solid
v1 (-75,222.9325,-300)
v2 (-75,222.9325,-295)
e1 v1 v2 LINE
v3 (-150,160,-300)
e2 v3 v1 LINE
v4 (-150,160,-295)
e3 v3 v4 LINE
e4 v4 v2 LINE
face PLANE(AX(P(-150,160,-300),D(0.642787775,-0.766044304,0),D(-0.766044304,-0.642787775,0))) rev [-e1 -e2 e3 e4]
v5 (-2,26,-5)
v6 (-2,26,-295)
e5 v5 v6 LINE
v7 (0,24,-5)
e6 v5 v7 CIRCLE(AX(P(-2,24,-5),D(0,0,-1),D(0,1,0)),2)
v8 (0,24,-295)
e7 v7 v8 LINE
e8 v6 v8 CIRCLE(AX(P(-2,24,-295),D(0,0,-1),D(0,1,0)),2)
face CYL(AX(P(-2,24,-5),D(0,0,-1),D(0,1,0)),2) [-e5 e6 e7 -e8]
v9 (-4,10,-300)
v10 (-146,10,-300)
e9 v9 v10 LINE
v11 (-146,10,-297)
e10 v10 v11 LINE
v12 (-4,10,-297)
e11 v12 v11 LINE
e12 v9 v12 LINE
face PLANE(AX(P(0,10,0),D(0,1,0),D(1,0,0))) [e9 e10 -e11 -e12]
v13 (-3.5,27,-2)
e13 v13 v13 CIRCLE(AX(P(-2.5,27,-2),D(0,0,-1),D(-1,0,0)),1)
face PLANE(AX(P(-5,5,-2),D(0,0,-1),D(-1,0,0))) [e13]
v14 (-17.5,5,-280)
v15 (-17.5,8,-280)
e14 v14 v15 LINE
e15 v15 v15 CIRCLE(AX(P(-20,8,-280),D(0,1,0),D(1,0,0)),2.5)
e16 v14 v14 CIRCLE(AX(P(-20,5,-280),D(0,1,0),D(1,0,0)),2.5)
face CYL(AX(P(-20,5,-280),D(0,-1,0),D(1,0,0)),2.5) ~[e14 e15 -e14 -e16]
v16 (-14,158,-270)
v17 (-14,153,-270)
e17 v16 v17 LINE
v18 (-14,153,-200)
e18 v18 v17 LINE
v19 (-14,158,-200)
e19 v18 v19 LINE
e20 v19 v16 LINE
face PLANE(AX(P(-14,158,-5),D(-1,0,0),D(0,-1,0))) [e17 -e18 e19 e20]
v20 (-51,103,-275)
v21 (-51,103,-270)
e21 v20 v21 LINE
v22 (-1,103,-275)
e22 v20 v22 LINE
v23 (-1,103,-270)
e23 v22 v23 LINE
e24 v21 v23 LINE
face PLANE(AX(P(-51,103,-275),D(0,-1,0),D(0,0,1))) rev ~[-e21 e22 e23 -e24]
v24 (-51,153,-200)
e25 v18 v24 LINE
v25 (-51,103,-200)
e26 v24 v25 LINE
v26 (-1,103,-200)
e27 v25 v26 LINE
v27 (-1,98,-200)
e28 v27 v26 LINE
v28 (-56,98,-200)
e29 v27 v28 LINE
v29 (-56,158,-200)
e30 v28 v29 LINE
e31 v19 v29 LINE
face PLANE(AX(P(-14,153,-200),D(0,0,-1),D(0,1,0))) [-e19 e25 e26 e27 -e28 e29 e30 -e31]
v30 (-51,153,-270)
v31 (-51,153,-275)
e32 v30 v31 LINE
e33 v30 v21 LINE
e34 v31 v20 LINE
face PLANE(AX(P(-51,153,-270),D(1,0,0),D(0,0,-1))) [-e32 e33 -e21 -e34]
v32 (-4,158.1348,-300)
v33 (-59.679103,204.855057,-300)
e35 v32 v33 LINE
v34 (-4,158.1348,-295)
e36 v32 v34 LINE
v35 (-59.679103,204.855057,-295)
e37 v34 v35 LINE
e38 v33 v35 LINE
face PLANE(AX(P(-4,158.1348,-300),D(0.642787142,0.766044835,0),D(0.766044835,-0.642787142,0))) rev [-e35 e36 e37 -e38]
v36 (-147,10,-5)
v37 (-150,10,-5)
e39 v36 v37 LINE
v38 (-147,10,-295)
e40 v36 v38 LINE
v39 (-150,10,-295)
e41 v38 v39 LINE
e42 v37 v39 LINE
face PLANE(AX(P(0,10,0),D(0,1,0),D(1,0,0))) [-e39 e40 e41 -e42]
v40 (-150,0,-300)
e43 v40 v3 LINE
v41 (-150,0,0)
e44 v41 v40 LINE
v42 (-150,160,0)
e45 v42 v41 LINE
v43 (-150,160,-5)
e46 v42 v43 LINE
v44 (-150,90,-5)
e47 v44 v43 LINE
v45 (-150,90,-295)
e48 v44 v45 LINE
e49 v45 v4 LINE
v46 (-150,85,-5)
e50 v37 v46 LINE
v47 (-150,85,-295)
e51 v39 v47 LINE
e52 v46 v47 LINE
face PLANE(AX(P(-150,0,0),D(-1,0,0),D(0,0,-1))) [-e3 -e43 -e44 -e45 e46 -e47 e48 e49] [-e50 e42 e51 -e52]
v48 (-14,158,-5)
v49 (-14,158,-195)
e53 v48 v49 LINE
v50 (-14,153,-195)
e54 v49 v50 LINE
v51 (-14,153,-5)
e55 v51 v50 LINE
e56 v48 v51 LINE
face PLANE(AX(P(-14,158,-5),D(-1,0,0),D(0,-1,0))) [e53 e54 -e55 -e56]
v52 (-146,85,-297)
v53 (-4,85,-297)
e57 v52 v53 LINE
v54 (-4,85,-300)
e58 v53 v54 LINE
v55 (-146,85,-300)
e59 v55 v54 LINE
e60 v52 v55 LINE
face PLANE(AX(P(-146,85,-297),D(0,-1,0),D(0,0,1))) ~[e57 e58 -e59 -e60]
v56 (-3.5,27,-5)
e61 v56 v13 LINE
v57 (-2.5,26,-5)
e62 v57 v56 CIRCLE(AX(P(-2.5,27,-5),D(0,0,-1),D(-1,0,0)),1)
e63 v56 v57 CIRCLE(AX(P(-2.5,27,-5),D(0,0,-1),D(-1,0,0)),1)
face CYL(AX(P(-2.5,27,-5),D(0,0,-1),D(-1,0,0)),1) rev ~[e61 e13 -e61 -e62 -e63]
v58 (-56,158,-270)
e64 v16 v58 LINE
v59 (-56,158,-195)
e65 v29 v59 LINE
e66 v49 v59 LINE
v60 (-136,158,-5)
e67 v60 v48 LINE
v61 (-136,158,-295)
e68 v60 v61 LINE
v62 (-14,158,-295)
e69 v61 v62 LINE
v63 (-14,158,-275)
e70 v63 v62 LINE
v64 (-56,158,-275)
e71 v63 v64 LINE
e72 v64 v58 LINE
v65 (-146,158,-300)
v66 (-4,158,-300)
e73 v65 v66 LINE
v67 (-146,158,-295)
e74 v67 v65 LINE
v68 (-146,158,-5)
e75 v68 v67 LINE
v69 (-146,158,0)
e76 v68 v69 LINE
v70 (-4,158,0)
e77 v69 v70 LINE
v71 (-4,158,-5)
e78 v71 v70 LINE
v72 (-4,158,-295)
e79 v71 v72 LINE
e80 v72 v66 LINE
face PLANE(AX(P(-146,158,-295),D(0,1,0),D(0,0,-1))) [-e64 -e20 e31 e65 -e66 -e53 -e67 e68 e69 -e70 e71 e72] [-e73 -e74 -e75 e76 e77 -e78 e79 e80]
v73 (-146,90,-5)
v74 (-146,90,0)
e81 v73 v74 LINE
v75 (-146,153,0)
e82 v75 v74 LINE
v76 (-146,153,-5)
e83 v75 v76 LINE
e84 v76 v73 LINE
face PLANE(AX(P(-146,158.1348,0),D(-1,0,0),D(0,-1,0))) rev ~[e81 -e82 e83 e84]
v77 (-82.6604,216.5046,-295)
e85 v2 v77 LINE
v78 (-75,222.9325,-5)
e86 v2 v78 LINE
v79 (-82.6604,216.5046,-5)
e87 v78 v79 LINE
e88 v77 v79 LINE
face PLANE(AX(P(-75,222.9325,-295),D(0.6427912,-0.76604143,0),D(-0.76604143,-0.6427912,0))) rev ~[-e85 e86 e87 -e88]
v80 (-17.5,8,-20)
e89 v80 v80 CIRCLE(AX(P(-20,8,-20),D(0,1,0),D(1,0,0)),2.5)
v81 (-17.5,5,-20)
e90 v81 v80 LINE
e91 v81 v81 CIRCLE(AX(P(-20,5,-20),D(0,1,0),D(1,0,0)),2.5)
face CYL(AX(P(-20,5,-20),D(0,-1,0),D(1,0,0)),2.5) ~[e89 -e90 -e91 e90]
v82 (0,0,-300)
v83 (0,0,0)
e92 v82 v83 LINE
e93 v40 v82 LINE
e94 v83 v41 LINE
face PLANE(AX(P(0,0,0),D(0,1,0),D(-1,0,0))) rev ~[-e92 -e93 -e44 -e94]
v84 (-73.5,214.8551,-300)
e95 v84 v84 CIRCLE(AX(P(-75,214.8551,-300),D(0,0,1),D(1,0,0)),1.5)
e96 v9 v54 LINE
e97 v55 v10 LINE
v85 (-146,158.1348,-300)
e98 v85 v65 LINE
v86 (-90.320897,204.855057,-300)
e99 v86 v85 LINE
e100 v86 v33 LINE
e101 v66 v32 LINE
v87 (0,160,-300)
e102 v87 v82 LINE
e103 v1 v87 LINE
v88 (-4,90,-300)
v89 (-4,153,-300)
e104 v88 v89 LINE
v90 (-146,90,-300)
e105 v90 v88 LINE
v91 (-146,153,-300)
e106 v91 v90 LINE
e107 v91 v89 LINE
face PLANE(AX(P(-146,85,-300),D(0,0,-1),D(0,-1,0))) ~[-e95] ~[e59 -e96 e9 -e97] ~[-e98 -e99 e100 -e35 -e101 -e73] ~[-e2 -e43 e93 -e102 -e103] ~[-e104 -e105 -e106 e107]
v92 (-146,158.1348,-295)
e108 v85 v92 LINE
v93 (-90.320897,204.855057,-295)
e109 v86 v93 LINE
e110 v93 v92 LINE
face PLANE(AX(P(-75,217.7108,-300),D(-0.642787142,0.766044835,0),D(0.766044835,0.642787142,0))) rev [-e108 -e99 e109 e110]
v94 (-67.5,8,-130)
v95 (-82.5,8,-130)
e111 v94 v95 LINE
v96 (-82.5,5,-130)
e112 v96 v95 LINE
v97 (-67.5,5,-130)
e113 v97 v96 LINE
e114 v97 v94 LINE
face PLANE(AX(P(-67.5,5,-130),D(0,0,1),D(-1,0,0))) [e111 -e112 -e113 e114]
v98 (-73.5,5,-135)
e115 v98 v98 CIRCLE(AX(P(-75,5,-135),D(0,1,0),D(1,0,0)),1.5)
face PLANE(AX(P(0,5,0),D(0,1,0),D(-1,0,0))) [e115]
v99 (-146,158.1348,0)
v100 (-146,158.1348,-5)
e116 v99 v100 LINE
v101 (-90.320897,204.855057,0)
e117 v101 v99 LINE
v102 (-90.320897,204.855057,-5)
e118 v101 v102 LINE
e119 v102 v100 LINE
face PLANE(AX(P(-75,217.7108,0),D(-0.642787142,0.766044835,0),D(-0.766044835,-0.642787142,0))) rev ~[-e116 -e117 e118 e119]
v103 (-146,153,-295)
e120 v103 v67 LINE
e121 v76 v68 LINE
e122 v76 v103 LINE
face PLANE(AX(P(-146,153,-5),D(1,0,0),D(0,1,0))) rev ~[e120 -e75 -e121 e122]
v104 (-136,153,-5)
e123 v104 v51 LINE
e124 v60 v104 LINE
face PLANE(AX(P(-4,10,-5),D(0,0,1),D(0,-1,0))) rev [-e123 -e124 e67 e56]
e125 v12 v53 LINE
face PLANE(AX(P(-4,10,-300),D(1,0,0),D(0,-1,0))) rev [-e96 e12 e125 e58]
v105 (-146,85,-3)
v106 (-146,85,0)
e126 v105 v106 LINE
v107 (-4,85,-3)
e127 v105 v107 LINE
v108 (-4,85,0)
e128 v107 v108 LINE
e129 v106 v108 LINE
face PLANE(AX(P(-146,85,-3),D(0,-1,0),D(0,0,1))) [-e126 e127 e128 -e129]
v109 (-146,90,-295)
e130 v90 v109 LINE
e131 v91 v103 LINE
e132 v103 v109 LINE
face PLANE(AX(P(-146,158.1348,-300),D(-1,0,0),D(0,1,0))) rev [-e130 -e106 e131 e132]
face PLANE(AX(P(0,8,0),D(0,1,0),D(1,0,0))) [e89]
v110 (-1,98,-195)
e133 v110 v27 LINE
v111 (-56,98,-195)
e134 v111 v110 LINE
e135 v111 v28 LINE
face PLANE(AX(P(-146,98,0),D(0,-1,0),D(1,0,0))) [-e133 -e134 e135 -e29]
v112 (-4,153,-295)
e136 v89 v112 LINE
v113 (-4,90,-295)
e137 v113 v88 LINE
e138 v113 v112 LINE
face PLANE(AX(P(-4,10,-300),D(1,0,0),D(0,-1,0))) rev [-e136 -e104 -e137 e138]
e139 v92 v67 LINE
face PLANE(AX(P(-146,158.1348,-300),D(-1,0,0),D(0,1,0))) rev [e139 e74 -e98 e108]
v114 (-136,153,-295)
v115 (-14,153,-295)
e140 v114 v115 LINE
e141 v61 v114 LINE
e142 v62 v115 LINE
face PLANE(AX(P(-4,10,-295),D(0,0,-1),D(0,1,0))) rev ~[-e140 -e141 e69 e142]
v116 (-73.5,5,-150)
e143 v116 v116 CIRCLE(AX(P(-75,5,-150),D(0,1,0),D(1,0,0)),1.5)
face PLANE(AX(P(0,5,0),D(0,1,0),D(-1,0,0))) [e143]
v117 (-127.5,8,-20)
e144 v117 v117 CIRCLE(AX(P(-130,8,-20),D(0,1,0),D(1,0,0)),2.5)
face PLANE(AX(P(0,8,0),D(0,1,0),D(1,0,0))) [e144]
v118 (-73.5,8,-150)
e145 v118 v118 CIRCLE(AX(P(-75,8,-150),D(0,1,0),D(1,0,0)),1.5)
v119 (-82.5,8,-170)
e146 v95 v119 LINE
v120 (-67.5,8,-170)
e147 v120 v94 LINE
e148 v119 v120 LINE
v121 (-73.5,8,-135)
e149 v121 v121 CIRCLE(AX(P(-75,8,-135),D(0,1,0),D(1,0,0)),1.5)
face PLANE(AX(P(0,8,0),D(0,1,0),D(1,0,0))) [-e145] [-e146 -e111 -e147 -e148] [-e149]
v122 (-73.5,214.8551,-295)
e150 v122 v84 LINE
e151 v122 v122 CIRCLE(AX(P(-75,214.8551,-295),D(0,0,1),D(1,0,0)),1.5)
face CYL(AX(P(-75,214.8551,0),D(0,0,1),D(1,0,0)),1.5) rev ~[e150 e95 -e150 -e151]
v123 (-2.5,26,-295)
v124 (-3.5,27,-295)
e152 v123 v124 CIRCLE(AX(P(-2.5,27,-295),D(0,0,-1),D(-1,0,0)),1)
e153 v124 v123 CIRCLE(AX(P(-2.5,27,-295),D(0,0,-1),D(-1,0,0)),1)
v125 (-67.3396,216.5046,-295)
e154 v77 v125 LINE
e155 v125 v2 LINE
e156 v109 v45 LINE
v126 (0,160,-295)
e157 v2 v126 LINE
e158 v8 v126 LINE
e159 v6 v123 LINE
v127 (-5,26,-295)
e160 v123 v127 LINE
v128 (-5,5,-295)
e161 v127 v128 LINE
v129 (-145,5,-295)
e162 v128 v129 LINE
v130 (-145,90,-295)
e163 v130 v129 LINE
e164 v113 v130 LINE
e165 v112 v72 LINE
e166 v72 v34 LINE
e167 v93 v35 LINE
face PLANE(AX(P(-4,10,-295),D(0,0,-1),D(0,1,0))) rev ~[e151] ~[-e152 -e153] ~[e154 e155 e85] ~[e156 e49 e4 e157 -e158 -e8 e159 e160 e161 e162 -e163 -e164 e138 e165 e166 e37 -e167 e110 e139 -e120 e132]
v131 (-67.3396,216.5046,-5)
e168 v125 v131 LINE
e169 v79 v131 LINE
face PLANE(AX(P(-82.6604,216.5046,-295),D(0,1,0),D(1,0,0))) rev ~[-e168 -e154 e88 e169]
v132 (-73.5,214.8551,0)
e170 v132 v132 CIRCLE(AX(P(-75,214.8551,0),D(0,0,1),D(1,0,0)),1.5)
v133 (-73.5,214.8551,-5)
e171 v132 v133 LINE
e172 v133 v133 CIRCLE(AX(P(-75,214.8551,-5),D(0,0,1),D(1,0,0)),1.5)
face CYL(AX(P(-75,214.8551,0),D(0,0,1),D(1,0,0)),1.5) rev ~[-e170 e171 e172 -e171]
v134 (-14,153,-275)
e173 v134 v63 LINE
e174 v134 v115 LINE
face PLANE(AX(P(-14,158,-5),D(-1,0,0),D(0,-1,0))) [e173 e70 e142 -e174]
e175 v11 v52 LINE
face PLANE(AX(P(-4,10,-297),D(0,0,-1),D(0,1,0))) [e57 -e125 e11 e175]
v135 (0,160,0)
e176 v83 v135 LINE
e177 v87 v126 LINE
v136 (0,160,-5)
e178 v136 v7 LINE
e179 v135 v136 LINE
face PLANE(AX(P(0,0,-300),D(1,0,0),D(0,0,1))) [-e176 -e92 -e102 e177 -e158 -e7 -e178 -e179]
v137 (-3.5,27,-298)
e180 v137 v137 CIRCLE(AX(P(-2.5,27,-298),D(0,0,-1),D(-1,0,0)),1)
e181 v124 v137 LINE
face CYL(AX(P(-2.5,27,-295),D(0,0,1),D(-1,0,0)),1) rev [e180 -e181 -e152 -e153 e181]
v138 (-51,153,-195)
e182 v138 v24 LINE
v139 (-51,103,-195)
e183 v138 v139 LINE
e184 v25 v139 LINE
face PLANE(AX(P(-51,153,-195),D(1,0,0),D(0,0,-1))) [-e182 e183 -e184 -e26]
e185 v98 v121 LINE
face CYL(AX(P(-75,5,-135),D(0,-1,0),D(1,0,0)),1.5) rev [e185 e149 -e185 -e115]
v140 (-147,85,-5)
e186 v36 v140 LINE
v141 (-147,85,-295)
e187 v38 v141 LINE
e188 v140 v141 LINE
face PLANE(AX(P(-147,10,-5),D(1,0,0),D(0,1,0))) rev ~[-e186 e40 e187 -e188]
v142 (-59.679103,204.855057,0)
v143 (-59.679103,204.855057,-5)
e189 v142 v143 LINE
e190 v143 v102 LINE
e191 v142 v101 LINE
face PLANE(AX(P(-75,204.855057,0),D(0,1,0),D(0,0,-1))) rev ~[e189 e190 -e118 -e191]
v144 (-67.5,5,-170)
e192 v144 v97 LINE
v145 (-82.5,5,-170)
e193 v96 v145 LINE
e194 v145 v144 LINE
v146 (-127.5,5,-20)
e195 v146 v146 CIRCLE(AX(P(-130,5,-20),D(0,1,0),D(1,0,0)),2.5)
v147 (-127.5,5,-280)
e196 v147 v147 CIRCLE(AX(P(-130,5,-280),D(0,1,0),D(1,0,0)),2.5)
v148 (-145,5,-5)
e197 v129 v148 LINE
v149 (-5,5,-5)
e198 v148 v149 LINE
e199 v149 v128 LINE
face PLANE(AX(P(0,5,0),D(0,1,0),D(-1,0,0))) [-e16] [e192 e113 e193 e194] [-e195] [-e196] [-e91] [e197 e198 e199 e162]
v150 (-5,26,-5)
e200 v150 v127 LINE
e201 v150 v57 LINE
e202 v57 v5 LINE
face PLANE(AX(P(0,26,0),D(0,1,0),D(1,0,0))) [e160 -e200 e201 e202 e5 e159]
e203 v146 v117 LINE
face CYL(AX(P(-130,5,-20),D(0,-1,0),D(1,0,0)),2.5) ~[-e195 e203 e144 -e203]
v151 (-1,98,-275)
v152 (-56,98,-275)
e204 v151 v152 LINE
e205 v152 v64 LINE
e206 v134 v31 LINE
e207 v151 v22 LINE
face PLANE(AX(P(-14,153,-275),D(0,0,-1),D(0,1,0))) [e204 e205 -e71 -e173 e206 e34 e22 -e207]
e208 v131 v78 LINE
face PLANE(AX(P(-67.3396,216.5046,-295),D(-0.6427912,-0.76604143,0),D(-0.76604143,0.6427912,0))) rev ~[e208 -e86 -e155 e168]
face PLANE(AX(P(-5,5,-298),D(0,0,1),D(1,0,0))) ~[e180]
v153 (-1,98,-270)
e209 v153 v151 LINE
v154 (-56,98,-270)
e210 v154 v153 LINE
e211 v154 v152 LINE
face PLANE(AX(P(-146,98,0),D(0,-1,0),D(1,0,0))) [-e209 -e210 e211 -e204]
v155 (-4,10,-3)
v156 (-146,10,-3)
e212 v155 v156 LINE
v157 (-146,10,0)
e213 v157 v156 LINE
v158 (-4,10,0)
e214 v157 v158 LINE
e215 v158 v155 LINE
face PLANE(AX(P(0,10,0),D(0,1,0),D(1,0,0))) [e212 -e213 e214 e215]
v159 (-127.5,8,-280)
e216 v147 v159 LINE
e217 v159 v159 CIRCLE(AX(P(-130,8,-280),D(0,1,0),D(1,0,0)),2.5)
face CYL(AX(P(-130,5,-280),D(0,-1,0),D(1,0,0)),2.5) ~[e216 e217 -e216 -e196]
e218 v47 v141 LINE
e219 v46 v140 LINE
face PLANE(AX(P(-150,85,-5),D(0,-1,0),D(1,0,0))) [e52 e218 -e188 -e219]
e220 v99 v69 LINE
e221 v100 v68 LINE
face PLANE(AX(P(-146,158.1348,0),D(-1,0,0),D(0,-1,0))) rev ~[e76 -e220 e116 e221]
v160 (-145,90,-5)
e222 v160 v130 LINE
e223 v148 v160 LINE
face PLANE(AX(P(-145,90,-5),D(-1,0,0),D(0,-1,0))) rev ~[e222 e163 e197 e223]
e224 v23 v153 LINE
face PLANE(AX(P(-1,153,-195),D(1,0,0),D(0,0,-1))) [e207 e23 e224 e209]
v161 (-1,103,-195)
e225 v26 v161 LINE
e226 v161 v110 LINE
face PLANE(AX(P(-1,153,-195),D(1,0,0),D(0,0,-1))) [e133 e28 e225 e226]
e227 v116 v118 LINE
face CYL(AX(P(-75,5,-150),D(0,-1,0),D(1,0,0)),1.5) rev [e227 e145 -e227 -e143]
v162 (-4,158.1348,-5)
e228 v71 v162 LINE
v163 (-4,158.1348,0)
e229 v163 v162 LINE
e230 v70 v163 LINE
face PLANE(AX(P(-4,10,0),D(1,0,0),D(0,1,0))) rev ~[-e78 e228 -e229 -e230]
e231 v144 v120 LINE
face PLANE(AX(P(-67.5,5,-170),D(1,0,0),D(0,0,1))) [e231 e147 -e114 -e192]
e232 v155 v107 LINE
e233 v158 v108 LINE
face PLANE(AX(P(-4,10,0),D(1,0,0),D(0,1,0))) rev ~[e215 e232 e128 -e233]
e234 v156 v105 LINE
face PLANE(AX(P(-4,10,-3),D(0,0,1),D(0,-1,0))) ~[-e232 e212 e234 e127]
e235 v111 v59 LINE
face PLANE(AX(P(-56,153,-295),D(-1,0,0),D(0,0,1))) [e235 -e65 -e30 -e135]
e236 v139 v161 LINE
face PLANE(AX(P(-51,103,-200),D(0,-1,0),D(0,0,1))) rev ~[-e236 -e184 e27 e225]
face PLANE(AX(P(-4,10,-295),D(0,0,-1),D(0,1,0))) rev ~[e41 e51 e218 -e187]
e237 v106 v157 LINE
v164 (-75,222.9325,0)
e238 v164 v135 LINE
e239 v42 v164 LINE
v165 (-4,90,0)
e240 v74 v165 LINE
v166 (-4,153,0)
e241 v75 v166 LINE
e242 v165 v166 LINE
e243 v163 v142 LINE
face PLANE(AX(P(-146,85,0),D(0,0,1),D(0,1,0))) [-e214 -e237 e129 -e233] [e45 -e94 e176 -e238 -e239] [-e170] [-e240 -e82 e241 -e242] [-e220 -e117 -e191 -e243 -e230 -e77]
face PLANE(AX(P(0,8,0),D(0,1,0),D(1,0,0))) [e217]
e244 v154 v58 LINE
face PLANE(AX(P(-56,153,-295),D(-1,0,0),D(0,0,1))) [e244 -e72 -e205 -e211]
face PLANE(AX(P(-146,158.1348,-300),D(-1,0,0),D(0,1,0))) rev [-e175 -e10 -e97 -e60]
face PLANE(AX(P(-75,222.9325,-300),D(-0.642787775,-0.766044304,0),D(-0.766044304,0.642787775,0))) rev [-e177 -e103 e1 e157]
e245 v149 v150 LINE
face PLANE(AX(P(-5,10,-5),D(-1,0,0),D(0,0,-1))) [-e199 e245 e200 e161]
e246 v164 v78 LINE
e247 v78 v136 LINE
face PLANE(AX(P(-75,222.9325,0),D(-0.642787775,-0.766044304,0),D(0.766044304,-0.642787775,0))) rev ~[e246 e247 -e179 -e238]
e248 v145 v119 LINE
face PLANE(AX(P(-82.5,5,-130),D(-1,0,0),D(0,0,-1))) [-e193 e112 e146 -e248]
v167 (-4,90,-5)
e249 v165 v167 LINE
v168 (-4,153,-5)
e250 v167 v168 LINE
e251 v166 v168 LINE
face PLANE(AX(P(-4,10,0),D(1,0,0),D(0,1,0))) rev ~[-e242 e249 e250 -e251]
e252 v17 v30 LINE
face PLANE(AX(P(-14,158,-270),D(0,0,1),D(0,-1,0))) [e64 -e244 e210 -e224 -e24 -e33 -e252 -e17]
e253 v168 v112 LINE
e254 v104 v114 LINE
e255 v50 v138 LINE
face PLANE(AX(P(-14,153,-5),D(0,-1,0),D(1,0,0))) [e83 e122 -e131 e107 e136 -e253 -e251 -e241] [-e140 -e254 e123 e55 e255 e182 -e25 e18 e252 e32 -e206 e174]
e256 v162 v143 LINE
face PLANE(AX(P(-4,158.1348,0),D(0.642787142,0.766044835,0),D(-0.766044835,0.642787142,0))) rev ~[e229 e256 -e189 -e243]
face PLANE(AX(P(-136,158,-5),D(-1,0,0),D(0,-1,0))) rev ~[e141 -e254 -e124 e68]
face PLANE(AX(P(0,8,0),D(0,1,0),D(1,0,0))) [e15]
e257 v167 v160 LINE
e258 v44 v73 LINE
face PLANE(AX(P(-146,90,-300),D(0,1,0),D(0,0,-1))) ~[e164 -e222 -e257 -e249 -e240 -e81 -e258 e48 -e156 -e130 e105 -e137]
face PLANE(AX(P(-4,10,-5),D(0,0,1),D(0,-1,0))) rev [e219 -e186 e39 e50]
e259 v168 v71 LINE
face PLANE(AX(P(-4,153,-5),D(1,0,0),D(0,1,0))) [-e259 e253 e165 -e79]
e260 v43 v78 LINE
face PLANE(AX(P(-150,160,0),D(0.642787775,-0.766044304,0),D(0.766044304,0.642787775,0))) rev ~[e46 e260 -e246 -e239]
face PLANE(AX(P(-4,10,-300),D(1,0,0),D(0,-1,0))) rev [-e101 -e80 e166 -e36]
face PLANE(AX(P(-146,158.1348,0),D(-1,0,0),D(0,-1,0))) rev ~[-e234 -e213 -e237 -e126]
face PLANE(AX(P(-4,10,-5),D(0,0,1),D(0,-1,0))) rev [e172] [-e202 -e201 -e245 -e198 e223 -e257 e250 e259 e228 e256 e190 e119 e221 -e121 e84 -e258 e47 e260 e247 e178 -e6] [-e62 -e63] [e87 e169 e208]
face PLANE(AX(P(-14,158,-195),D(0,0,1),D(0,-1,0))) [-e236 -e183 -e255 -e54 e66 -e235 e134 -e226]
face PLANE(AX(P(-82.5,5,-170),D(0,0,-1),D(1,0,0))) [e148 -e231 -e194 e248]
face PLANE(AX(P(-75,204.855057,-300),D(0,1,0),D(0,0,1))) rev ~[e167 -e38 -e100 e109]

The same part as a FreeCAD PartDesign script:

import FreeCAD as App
import Part
import Sketcher

V = App.Vector
Q = App.Units.Quantity


def edges_at(feature, points):
    """Names of the edges that pass closest to the given points."""
    edges = feature.Shape.Edges
    near = lambda p: min(range(len(edges)), key=lambda i: edges[i].distToShape(Part.Vertex(*p))[0])
    return sorted({f"Edge{near(p) + 1}" for p in points})


def add_polygon(sketch, points):
    """Adds a closed chain of lines whose ends are joined by coincident constraints."""
    first, n = sketch.GeometryCount, len(points)
    for a, b in zip(points, points[1:] + points[:1]):
        sketch.addGeometry(Part.LineSegment(App.Vector(*a, 0), App.Vector(*b, 0)), False)
    for i in range(n):
        sketch.addConstraint(Sketcher.Constraint("Coincident", first + i, 2, first + (i + 1) % n, 1))

doc = App.newDocument("Part")
body = doc.addObject("PartDesign::Body", "Body")

# Sketch on XZ plane
sketch1 = body.newObject("Sketcher::SketchObject", "Sketch")
sketch1.AttachmentSupport = (doc.getObject("XZ_Plane"), [""])
sketch1.MapMode = "FlatFace"
add_polygon(sketch1, [(-150, 0), (0, 0), (0, -300), (-150, -300)])  # lines 0-3
sketch1.addConstraint(Sketcher.Constraint("Horizontal", 0))
sketch1.addConstraint(Sketcher.Constraint("Vertical", 1))
sketch1.addConstraint(Sketcher.Constraint("Horizontal", 2))
sketch1.addConstraint(Sketcher.Constraint("Vertical", 3))
sketch1.addConstraint(Sketcher.Constraint("Coincident", 0, 2, -1, 1))
sketch1.addConstraint(Sketcher.Constraint("DistanceX", 0, 1, 0, 2, 150.0))
sketch1.addConstraint(Sketcher.Constraint("DistanceY", 1, 2, 1, 1, 300.0))
pad1 = body.newObject("PartDesign::Pad", "Pad")
pad1.Profile = sketch1
pad1.Length = 5
pad1.Reversed = True

# Sketch on XZ plane
sketch2 = body.newObject("Sketcher::SketchObject", "Sketch001")
sketch2.AttachmentSupport = (doc.getObject("XZ_Plane"), [""])
sketch2.MapMode = "FlatFace"
sketch2.AttachmentOffset = App.Placement(V(0, 0, -5), App.Rotation())
add_polygon(sketch2, [(-150, -300), (-150, 0), (0, 0), (0, -300)])  # lines 0-3
add_polygon(sketch2, [(-145, -5), (-145, -295), (-5, -295), (-5, -5)])  # lines 4-7
sketch2.addConstraint(Sketcher.Constraint("Vertical", 0))
sketch2.addConstraint(Sketcher.Constraint("Horizontal", 1))
sketch2.addConstraint(Sketcher.Constraint("Vertical", 2))
sketch2.addConstraint(Sketcher.Constraint("Horizontal", 3))
sketch2.addConstraint(Sketcher.Constraint("Vertical", 4))
sketch2.addConstraint(Sketcher.Constraint("Horizontal", 5))
sketch2.addConstraint(Sketcher.Constraint("Vertical", 6))
sketch2.addConstraint(Sketcher.Constraint("Horizontal", 7))
sketch2.addConstraint(Sketcher.Constraint("Coincident", 1, 2, -1, 1))
sketch2.addConstraint(Sketcher.Constraint("DistanceX", 5, 2, -1, 1, 5.0))
sketch2.addConstraint(Sketcher.Constraint("DistanceY", 6, 2, -1, 1, 5.0))
sketch2.addConstraint(Sketcher.Constraint("DistanceX", 3, 2, 4, 2, 5.0))
sketch2.addConstraint(Sketcher.Constraint("DistanceY", 3, 2, 4, 2, 5.0))
sketch2.addConstraint(Sketcher.Constraint("DistanceX", 1, 1, 1, 2, 150.0))
sketch2.addConstraint(Sketcher.Constraint("DistanceY", 0, 1, 0, 2, 300.0))
pad2 = body.newObject("PartDesign::Pad", "Pad001")
pad2.Profile = sketch2
pad2.Length = 5
pad2.Reversed = True

# Sketch on XY plane
sketch3 = body.newObject("Sketcher::SketchObject", "Sketch002")
sketch3.AttachmentSupport = (doc.getObject("XY_Plane"), [""])
sketch3.MapMode = "FlatFace"
add_polygon(sketch3, [(-4, 10), (0, 10), (0, 160), (-75, 222.9), (-150, 160), (-150, 10), (-146, 10), (-146, 158.1), (-75, 217.7), (-4, 158.1)])  # lines 0-9
sketch3.addConstraint(Sketcher.Constraint("Horizontal", 0))
sketch3.addConstraint(Sketcher.Constraint("Vertical", 1))
sketch3.addConstraint(Sketcher.Constraint("Vertical", 4))
sketch3.addConstraint(Sketcher.Constraint("Horizontal", 5))
sketch3.addConstraint(Sketcher.Constraint("Vertical", 6))
sketch3.addConstraint(Sketcher.Constraint("Vertical", 9))
sketch3.addConstraint(Sketcher.Constraint("PointOnObject", 0, 2, -2))
sketch3.addConstraint(Sketcher.Constraint("Parallel", 3, 7))
sketch3.addConstraint(Sketcher.Constraint("Parallel", 2, 8))
sketch3.addConstraint(Sketcher.Constraint("Horizontal", 1, 2, 3, 2))
sketch3.addConstraint(Sketcher.Constraint("Horizontal", 0, 2, 4, 2))
sketch3.addConstraint(Sketcher.Constraint("Horizontal", 6, 2, 8, 2))
sketch3.addConstraint(Sketcher.Constraint("Vertical", 2, 2, 7, 2))
sketch3.addConstraint(Sketcher.Constraint("Equal", 0, 5))
sketch3.addConstraint(Sketcher.Constraint("DistanceX", 0, 1, 0, 2, 4.0))
sketch3.addConstraint(Sketcher.Constraint("DistanceY", 1, 1, 1, 2, 150.0))
sketch3.addConstraint(Sketcher.Constraint("DistanceX", 3, 2, -1, 1, 150.0))
sketch3.addConstraint(Sketcher.Constraint("Angle", 2, Q("140 deg")))
sketch3.addConstraint(Sketcher.Constraint("DistanceY", -1, 1, 0, 2, 10.0))
sketch3.addConstraint(Sketcher.Constraint("DistanceY", 6, 1, 6, 2, 148.1348))
pad3 = body.newObject("PartDesign::Pad", "Pad002")
pad3.Profile = sketch3
pad3.Length = 5
pad3.Reversed = True
doc.recompute()

datumplane = body.newObject("PartDesign::Plane", "DatumPlane")
datumplane.AttachmentSupport = (doc.getObject("XY_Plane"), [""])
datumplane.MapMode = "FlatFace"
datumplane.AttachmentOffset = App.Placement(V(0, 0, -150), App.Rotation())
mirrored = body.newObject("PartDesign::Mirrored", "Mirrored")
mirrored.Originals = [pad3]
mirrored.MirrorPlane = (datumplane, [""])
body.Tip = mirrored

# Sketch on XY plane
sketch4 = body.newObject("Sketcher::SketchObject", "Sketch003")
sketch4.AttachmentSupport = (doc.getObject("XY_Plane"), [""])
sketch4.MapMode = "FlatFace"
sketch4.AttachmentOffset = App.Placement(V(0, 0, -5), App.Rotation())
add_polygon(sketch4, [(-145, 90), (-145, 10), (-147, 10), (-147, 90)])  # lines 0-3
sketch4.addConstraint(Sketcher.Constraint("Vertical", 0))
sketch4.addConstraint(Sketcher.Constraint("Horizontal", 1))
sketch4.addConstraint(Sketcher.Constraint("Vertical", 2))
sketch4.addConstraint(Sketcher.Constraint("Horizontal", 3))
sketch4.addConstraint(Sketcher.Constraint("DistanceX", 1, 2, 1, 1, 2.0))
sketch4.addConstraint(Sketcher.Constraint("DistanceY", 0, 2, 0, 1, 80.0))
sketch4.addConstraint(Sketcher.Constraint("DistanceX", 0, 2, -1, 1, 145.0))
sketch4.addConstraint(Sketcher.Constraint("DistanceY", -1, 1, 0, 2, 10.0))
pad4 = body.newObject("PartDesign::Pad", "Pad003")
pad4.Profile = sketch4
pad4.Length = 290
pad4.Reversed = True

# Sketch on YZ plane
sketch5 = body.newObject("Sketcher::SketchObject", "Sketch004")
sketch5.AttachmentSupport = (doc.getObject("YZ_Plane"), [""])
sketch5.MapMode = "FlatFace"
sketch5.AttachmentOffset = App.Placement(V(0, 0, -4), App.Rotation())
add_polygon(sketch5, [(10, -297), (10, -295), (90, -295), (90, -297)])  # lines 0-3
sketch5.addConstraint(Sketcher.Constraint("Vertical", 0))
sketch5.addConstraint(Sketcher.Constraint("Horizontal", 1))
sketch5.addConstraint(Sketcher.Constraint("Vertical", 2))
sketch5.addConstraint(Sketcher.Constraint("Horizontal", 3))
sketch5.addConstraint(Sketcher.Constraint("DistanceX", 1, 1, 1, 2, 80.0))
sketch5.addConstraint(Sketcher.Constraint("DistanceY", 0, 1, 0, 2, 2.0))
sketch5.addConstraint(Sketcher.Constraint("DistanceX", -1, 1, 0, 2, 10.0))
sketch5.addConstraint(Sketcher.Constraint("DistanceY", 0, 2, -1, 1, 295.0))
pad5 = body.newObject("PartDesign::Pad", "Pad004")
pad5.Profile = sketch5
pad5.Length = 142
pad5.Reversed = True
doc.recompute()

datumplane2 = body.newObject("PartDesign::Plane", "DatumPlane001")
datumplane2.AttachmentSupport = (doc.getObject("XY_Plane"), [""])
datumplane2.MapMode = "FlatFace"
datumplane2.AttachmentOffset = App.Placement(V(0, 0, -150), App.Rotation())
mirrored2 = body.newObject("PartDesign::Mirrored", "Mirrored001")
mirrored2.Originals = [pad5]
mirrored2.MirrorPlane = (datumplane2, [""])
body.Tip = mirrored2

# Sketch on YZ plane
sketch6 = body.newObject("Sketcher::SketchObject", "Sketch005")
sketch6.AttachmentSupport = (doc.getObject("YZ_Plane"), [""])
sketch6.MapMode = "FlatFace"
sketch6.AttachmentOffset = App.Placement(V(0, 0, -146), App.Rotation())
add_polygon(sketch6, [(85, -3), (90, -3), (90, 0), (85, 0)])  # lines 0-3
sketch6.addConstraint(Sketcher.Constraint("Horizontal", 0))
sketch6.addConstraint(Sketcher.Constraint("Vertical", 1))
sketch6.addConstraint(Sketcher.Constraint("Horizontal", 2))
sketch6.addConstraint(Sketcher.Constraint("Vertical", 3))
sketch6.addConstraint(Sketcher.Constraint("PointOnObject", 1, 2, -1))
sketch6.addConstraint(Sketcher.Constraint("DistanceX", 0, 1, 0, 2, 5.0))
sketch6.addConstraint(Sketcher.Constraint("DistanceY", 1, 1, 1, 2, 3.0))
sketch6.addConstraint(Sketcher.Constraint("DistanceX", -1, 1, 0, 2, 90.0))
pad6 = body.newObject("PartDesign::Pad", "Pad005")
pad6.Profile = sketch6
pad6.Length = 142
doc.recompute()

datumplane3 = body.newObject("PartDesign::Plane", "DatumPlane002")
datumplane3.AttachmentSupport = (doc.getObject("XY_Plane"), [""])
datumplane3.MapMode = "FlatFace"
datumplane3.AttachmentOffset = App.Placement(V(0, 0, -150), App.Rotation())
mirrored3 = body.newObject("PartDesign::Mirrored", "Mirrored002")
mirrored3.Originals = [pad6]
mirrored3.MirrorPlane = (datumplane3, [""])
body.Tip = mirrored3

# Sketch on XY plane
sketch7 = body.newObject("Sketcher::SketchObject", "Sketch006")
sketch7.AttachmentSupport = (doc.getObject("XY_Plane"), [""])
sketch7.MapMode = "FlatFace"
sketch7.AttachmentOffset = App.Placement(V(0, 0, -5), App.Rotation())
add_polygon(sketch7, [(-150, 90), (-146, 90), (-146, 85), (-150, 85)])  # lines 0-3
sketch7.addConstraint(Sketcher.Constraint("Horizontal", 0))
sketch7.addConstraint(Sketcher.Constraint("Vertical", 1))
sketch7.addConstraint(Sketcher.Constraint("Horizontal", 2))
sketch7.addConstraint(Sketcher.Constraint("Vertical", 3))
sketch7.addConstraint(Sketcher.Constraint("DistanceY", 1, 2, 1, 1, 5.0))
sketch7.addConstraint(Sketcher.Constraint("DistanceX", 0, 1, 0, 2, 4.0))
sketch7.addConstraint(Sketcher.Constraint("DistanceX", 0, 2, -1, 1, 146.0))
sketch7.addConstraint(Sketcher.Constraint("DistanceY", -1, 1, 0, 2, 90.0))
pad7 = body.newObject("PartDesign::Pad", "Pad006")
pad7.Profile = sketch7
pad7.Length = 290
pad7.Reversed = True
doc.recompute()

chamfer = body.newObject("PartDesign::Chamfer", "Chamfer")
chamfer.Base = (pad7, edges_at(pad7, [(-75, 217.711, -297.5)]))
chamfer.Size = 20
doc.recompute()

chamfer2 = body.newObject("PartDesign::Chamfer", "Chamfer001")
chamfer2.Base = (chamfer, edges_at(chamfer, [(-75, 217.711, -2.5)]))
chamfer2.Size = 20

# Sketch on XY plane
sketch8 = body.newObject("Sketcher::SketchObject", "Sketch007")
sketch8.AttachmentSupport = (doc.getObject("XY_Plane"), [""])
sketch8.MapMode = "FlatFace"
sketch8.addGeometry(Part.Circle(V(-75, 214.9, 0), V(0, 0, 1), 1.5), False)
sketch8.addConstraint(Sketcher.Constraint("Diameter", 0, 3.0))
sketch8.addConstraint(Sketcher.Constraint("DistanceX", 0, 3, -1, 1, 75.0))
sketch8.addConstraint(Sketcher.Constraint("DistanceY", -1, 1, 0, 3, 214.855))
pocket1 = body.newObject("PartDesign::Pocket", "Pocket")
pocket1.Profile = sketch8
pocket1.Length = 310.0375

# Sketch on XY plane
sketch9 = body.newObject("Sketcher::SketchObject", "Sketch008")
sketch9.AttachmentSupport = (doc.getObject("XY_Plane"), [""])
sketch9.MapMode = "FlatFace"
sketch9.AttachmentOffset = App.Placement(V(0, 0, -295), App.Rotation())
add_polygon(sketch9, [(-67, 217), (-75, 223), (-83, 217)])  # lines 0-2
sketch9.addConstraint(Sketcher.Constraint("Horizontal", 2))
sketch9.addConstraint(Sketcher.Constraint("Equal", 0, 1))
sketch9.addConstraint(Sketcher.Constraint("Distance", 0, 10.0))
sketch9.addConstraint(Sketcher.Constraint("Angle", 0, Q("139.9997 deg")))
sketch9.addConstraint(Sketcher.Constraint("DistanceX", 0, 2, -1, 1, 75.0))
sketch9.addConstraint(Sketcher.Constraint("DistanceY", -1, 1, 0, 2, 222.9325))
pad8 = body.newObject("PartDesign::Pad", "Pad007")
pad8.Profile = sketch9
pad8.Length = 290

# Sketch on YZ plane
sketch10 = body.newObject("Sketcher::SketchObject", "Sketch009")
sketch10.AttachmentSupport = (doc.getObject("YZ_Plane"), [""])
sketch10.MapMode = "FlatFace"
sketch10.AttachmentOffset = App.Placement(V(0, 0, -146), App.Rotation())
add_polygon(sketch10, [(158, -300), (158, -295), (153, -295), (153, -300)])  # lines 0-3
sketch10.addConstraint(Sketcher.Constraint("Vertical", 0))
sketch10.addConstraint(Sketcher.Constraint("Horizontal", 1))
sketch10.addConstraint(Sketcher.Constraint("Vertical", 2))
sketch10.addConstraint(Sketcher.Constraint("Horizontal", 3))
sketch10.addConstraint(Sketcher.Constraint("Equal", 3, 0))
sketch10.addConstraint(Sketcher.Constraint("DistanceX", 1, 2, 1, 1, 5.0))
sketch10.addConstraint(Sketcher.Constraint("DistanceX", -1, 1, 0, 2, 158.0))
sketch10.addConstraint(Sketcher.Constraint("DistanceY", 0, 2, -1, 1, 295.0))
pad9 = body.newObject("PartDesign::Pad", "Pad008")
pad9.Profile = sketch10
pad9.Length = 142
doc.recompute()

datumplane4 = body.newObject("PartDesign::Plane", "DatumPlane003")
datumplane4.AttachmentSupport = (doc.getObject("XY_Plane"), [""])
datumplane4.MapMode = "FlatFace"
datumplane4.AttachmentOffset = App.Placement(V(0, 0, -150), App.Rotation())
mirrored4 = body.newObject("PartDesign::Mirrored", "Mirrored003")
mirrored4.Originals = [pad9]
mirrored4.MirrorPlane = (datumplane4, [""])
body.Tip = mirrored4

# Sketch on XY plane
sketch11 = body.newObject("Sketcher::SketchObject", "Sketch010")
sketch11.AttachmentSupport = (doc.getObject("XY_Plane"), [""])
sketch11.MapMode = "FlatFace"
sketch11.AttachmentOffset = App.Placement(V(0, 0, -5), App.Rotation())
add_polygon(sketch11, [(-14, 158), (-4, 158), (-4, 153), (-14, 153)])  # lines 0-3
add_polygon(sketch11, [(-136, 158), (-136, 153), (-146, 153), (-146, 158)])  # lines 4-7
sketch11.addConstraint(Sketcher.Constraint("Horizontal", 0))
sketch11.addConstraint(Sketcher.Constraint("Vertical", 1))
sketch11.addConstraint(Sketcher.Constraint("Horizontal", 2))
sketch11.addConstraint(Sketcher.Constraint("Vertical", 3))
sketch11.addConstraint(Sketcher.Constraint("Vertical", 4))
sketch11.addConstraint(Sketcher.Constraint("Horizontal", 5))
sketch11.addConstraint(Sketcher.Constraint("Vertical", 6))
sketch11.addConstraint(Sketcher.Constraint("Horizontal", 7))
sketch11.addConstraint(Sketcher.Constraint("Horizontal", 2, 2, 4, 2))
sketch11.addConstraint(Sketcher.Constraint("Horizontal", 3, 2, 6, 2))
sketch11.addConstraint(Sketcher.Constraint("Equal", 2, 5))
sketch11.addConstraint(Sketcher.Constraint("DistanceX", 0, 1, 0, 2, 10.0))
sketch11.addConstraint(Sketcher.Constraint("DistanceX", 5, 2, 1, 2, 142.0))
sketch11.addConstraint(Sketcher.Constraint("DistanceY", 1, 2, 1, 1, 5.0))
sketch11.addConstraint(Sketcher.Constraint("DistanceX", 0, 2, -1, 1, 4.0))
sketch11.addConstraint(Sketcher.Constraint("DistanceY", -1, 1, 0, 2, 158.0))
pad10 = body.newObject("PartDesign::Pad", "Pad009")
pad10.Profile = sketch11
pad10.Length = 290
pad10.Reversed = True

# Sketch on YZ plane
sketch12 = body.newObject("Sketcher::SketchObject", "Sketch011")
sketch12.AttachmentSupport = (doc.getObject("YZ_Plane"), [""])
sketch12.MapMode = "FlatFace"
sketch12.AttachmentOffset = App.Placement(V(0, 0, -14), App.Rotation())
add_polygon(sketch12, [(158, -270), (158, -275), (153, -275), (153, -270)])  # lines 0-3
add_polygon(sketch12, [(158, -195), (158, -200), (153, -200), (153, -195)])  # lines 4-7
sketch12.addConstraint(Sketcher.Constraint("Vertical", 0))
sketch12.addConstraint(Sketcher.Constraint("Horizontal", 1))
sketch12.addConstraint(Sketcher.Constraint("Vertical", 2))
sketch12.addConstraint(Sketcher.Constraint("Horizontal", 3))
sketch12.addConstraint(Sketcher.Constraint("Vertical", 4))
sketch12.addConstraint(Sketcher.Constraint("Horizontal", 5))
sketch12.addConstraint(Sketcher.Constraint("Vertical", 6))
sketch12.addConstraint(Sketcher.Constraint("Horizontal", 7))
sketch12.addConstraint(Sketcher.Constraint("Vertical", 3, 2, 4, 2))
sketch12.addConstraint(Sketcher.Constraint("Vertical", 2, 2, 5, 2))
sketch12.addConstraint(Sketcher.Constraint("Equal", 7, 0))
sketch12.addConstraint(Sketcher.Constraint("Equal", 2, 4))
sketch12.addConstraint(Sketcher.Constraint("DistanceX", 1, 2, 1, 1, 5.0))
sketch12.addConstraint(Sketcher.Constraint("DistanceY", 1, 2, 6, 2, 80.0))
sketch12.addConstraint(Sketcher.Constraint("DistanceX", -1, 1, 0, 2, 158.0))
sketch12.addConstraint(Sketcher.Constraint("DistanceY", 0, 2, -1, 1, 275.0))
pad11 = body.newObject("PartDesign::Pad", "Pad010")
pad11.Profile = sketch12
pad11.Length = 42
pad11.Reversed = True

# Sketch on XZ plane
sketch13 = body.newObject("Sketcher::SketchObject", "Sketch012")
sketch13.AttachmentSupport = (doc.getObject("XZ_Plane"), [""])
sketch13.MapMode = "FlatFace"
sketch13.AttachmentOffset = App.Placement(V(0, 0, -153), App.Rotation())
add_polygon(sketch13, [(-51, -195), (-56, -195), (-56, -200), (-51, -200)])  # lines 0-3
add_polygon(sketch13, [(-51, -270), (-56, -270), (-56, -275), (-51, -275)])  # lines 4-7
sketch13.addConstraint(Sketcher.Constraint("Horizontal", 0))
sketch13.addConstraint(Sketcher.Constraint("Vertical", 1))
sketch13.addConstraint(Sketcher.Constraint("Horizontal", 2))
sketch13.addConstraint(Sketcher.Constraint("Vertical", 3))
sketch13.addConstraint(Sketcher.Constraint("Horizontal", 4))
sketch13.addConstraint(Sketcher.Constraint("Vertical", 5))
sketch13.addConstraint(Sketcher.Constraint("Horizontal", 6))
sketch13.addConstraint(Sketcher.Constraint("Vertical", 7))
sketch13.addConstraint(Sketcher.Constraint("Vertical", 1, 2, 4, 2))
sketch13.addConstraint(Sketcher.Constraint("Vertical", 3, 2, 6, 2))
sketch13.addConstraint(Sketcher.Constraint("Equal", 6, 1))
sketch13.addConstraint(Sketcher.Constraint("Equal", 3, 5))
sketch13.addConstraint(Sketcher.Constraint("DistanceX", 0, 2, 0, 1, 5.0))
sketch13.addConstraint(Sketcher.Constraint("DistanceX", 0, 2, -1, 1, 56.0))
sketch13.addConstraint(Sketcher.Constraint("DistanceY", 0, 2, -1, 1, 195.0))
sketch13.addConstraint(Sketcher.Constraint("DistanceY", 4, 2, -1, 1, 270.0))
pad12 = body.newObject("PartDesign::Pad", "Pad011")
pad12.Profile = sketch13
pad12.Length = 55

# Sketch on YZ plane
sketch14 = body.newObject("Sketcher::SketchObject", "Sketch013")
sketch14.AttachmentSupport = (doc.getObject("YZ_Plane"), [""])
sketch14.MapMode = "FlatFace"
sketch14.AttachmentOffset = App.Placement(V(0, 0, -51), App.Rotation())
add_polygon(sketch14, [(103, -195), (98, -195), (98, -200), (103, -200)])  # lines 0-3
add_polygon(sketch14, [(103, -270), (98, -270), (98, -275), (103, -275)])  # lines 4-7
sketch14.addConstraint(Sketcher.Constraint("Horizontal", 0))
sketch14.addConstraint(Sketcher.Constraint("Vertical", 1))
sketch14.addConstraint(Sketcher.Constraint("Horizontal", 2))
sketch14.addConstraint(Sketcher.Constraint("Vertical", 3))
sketch14.addConstraint(Sketcher.Constraint("Horizontal", 4))
sketch14.addConstraint(Sketcher.Constraint("Vertical", 5))
sketch14.addConstraint(Sketcher.Constraint("Horizontal", 6))
sketch14.addConstraint(Sketcher.Constraint("Vertical", 7))
sketch14.addConstraint(Sketcher.Constraint("Vertical", 1, 2, 4, 2))
sketch14.addConstraint(Sketcher.Constraint("Vertical", 3, 2, 6, 2))
sketch14.addConstraint(Sketcher.Constraint("Equal", 6, 1))
sketch14.addConstraint(Sketcher.Constraint("Equal", 3, 5))
sketch14.addConstraint(Sketcher.Constraint("DistanceX", 0, 2, 0, 1, 5.0))
sketch14.addConstraint(Sketcher.Constraint("DistanceX", -1, 1, 0, 2, 98.0))
sketch14.addConstraint(Sketcher.Constraint("DistanceY", 0, 2, -1, 1, 195.0))
sketch14.addConstraint(Sketcher.Constraint("DistanceY", 4, 2, -1, 1, 270.0))
pad13 = body.newObject("PartDesign::Pad", "Pad012")
pad13.Profile = sketch14
pad13.Length = 50

# Sketch on XZ plane
sketch15 = body.newObject("Sketcher::SketchObject", "Sketch014")
sketch15.AttachmentSupport = (doc.getObject("XZ_Plane"), [""])
sketch15.MapMode = "FlatFace"
sketch15.AttachmentOffset = App.Placement(V(0, 0, -10), App.Rotation())
add_polygon(sketch15, [(-5, -295), (-5, -5), (0, -5), (0, -295)])  # lines 0-3
sketch15.addConstraint(Sketcher.Constraint("Vertical", 0))
sketch15.addConstraint(Sketcher.Constraint("Horizontal", 1))
sketch15.addConstraint(Sketcher.Constraint("Vertical", 2))
sketch15.addConstraint(Sketcher.Constraint("Horizontal", 3))
sketch15.addConstraint(Sketcher.Constraint("PointOnObject", 1, 2, -2))
sketch15.addConstraint(Sketcher.Constraint("DistanceX", 1, 1, 1, 2, 5.0))
sketch15.addConstraint(Sketcher.Constraint("DistanceY", 0, 1, 0, 2, 290.0))
sketch15.addConstraint(Sketcher.Constraint("DistanceY", 0, 2, -1, 1, 5.0))
pad14 = body.newObject("PartDesign::Pad", "Pad013")
pad14.Profile = sketch15
pad14.Length = 16
pad14.Reversed = True

# Sketch on XY plane
sketch16 = body.newObject("Sketcher::SketchObject", "Sketch015")
sketch16.AttachmentSupport = (doc.getObject("XY_Plane"), [""])
sketch16.MapMode = "FlatFace"
sketch16.AttachmentOffset = App.Placement(V(0, 0, -5), App.Rotation())
sketch16.addGeometry(Part.Circle(V(-2.5, 27, 0), V(0, 0, 1), 1), False)
sketch16.addConstraint(Sketcher.Constraint("Diameter", 0, 2.0))
sketch16.addConstraint(Sketcher.Constraint("DistanceY", -1, 1, 0, 3, 27.0))
sketch16.addConstraint(Sketcher.Constraint("DistanceX", 0, 3, -1, 1, 2.5))
pocket2 = body.newObject("PartDesign::Pocket", "Pocket001")
pocket2.Profile = sketch16
pocket2.Length = 3
pocket2.Reversed = True
doc.recompute()

datumplane5 = body.newObject("PartDesign::Plane", "DatumPlane004")
datumplane5.AttachmentSupport = (doc.getObject("XY_Plane"), [""])
datumplane5.MapMode = "FlatFace"
datumplane5.AttachmentOffset = App.Placement(V(0, 0, -150), App.Rotation())
mirrored5 = body.newObject("PartDesign::Mirrored", "Mirrored004")
mirrored5.Originals = [pocket2]
mirrored5.MirrorPlane = (datumplane5, [""])
body.Tip = mirrored5
doc.recompute()

fillet = body.newObject("PartDesign::Fillet", "Fillet")
fillet.Base = (mirrored5, edges_at(mirrored5, [(0, 26, -150)]))
fillet.Radius = 2

# Sketch on XZ plane
sketch17 = body.newObject("Sketcher::SketchObject", "Sketch016")
sketch17.AttachmentSupport = (doc.getObject("XZ_Plane"), [""])
sketch17.MapMode = "FlatFace"
sketch17.AttachmentOffset = App.Placement(V(0, 0, -5), App.Rotation())
add_polygon(sketch17, [(-82.5, -130), (-67.5, -130), (-67.5, -170), (-82.5, -170)])  # lines 0-3
sketch17.addGeometry(Part.Circle(V(-75, -135, 0), V(0, 0, 1), 1.5), False)  # 4
sketch17.addGeometry(Part.Circle(V(-75, -150, 0), V(0, 0, 1), 1.5), False)  # 5
sketch17.addConstraint(Sketcher.Constraint("Horizontal", 0))
sketch17.addConstraint(Sketcher.Constraint("Vertical", 1))
sketch17.addConstraint(Sketcher.Constraint("Horizontal", 2))
sketch17.addConstraint(Sketcher.Constraint("Vertical", 3))
sketch17.addConstraint(Sketcher.Constraint("Equal", 4, 5))
sketch17.addConstraint(Sketcher.Constraint("Vertical", 4, 3, 5, 3))
sketch17.addConstraint(Sketcher.Constraint("Diameter", 4, 3.0))
sketch17.addConstraint(Sketcher.Constraint("DistanceX", 0, 1, 0, 2, 15.0))
sketch17.addConstraint(Sketcher.Constraint("DistanceY", 1, 2, 1, 1, 40.0))
sketch17.addConstraint(Sketcher.Constraint("DistanceY", 5, 3, 4, 3, 15.0))
sketch17.addConstraint(Sketcher.Constraint("DistanceY", 4, 3, 0, 2, 5.0))
sketch17.addConstraint(Sketcher.Constraint("DistanceX", 4, 3, -1, 1, 75.0))
sketch17.addConstraint(Sketcher.Constraint("DistanceY", 4, 3, -1, 1, 135.0))
sketch17.addConstraint(Sketcher.Constraint("DistanceX", 0, 2, -1, 1, 67.5))
pad15 = body.newObject("PartDesign::Pad", "Pad014")
pad15.Profile = sketch17
pad15.Length = 3
pad15.Reversed = True

# Sketch on XZ plane
sketch18 = body.newObject("Sketcher::SketchObject", "Sketch017")
sketch18.AttachmentSupport = (doc.getObject("XZ_Plane"), [""])
sketch18.MapMode = "FlatFace"
sketch18.AttachmentOffset = App.Placement(V(0, 0, -5), App.Rotation())
sketch18.addGeometry(Part.Circle(V(-20, -20, 0), V(0, 0, 1), 2.5), False)
sketch18.addGeometry(Part.Circle(V(-20, -280, 0), V(0, 0, 1), 2.5), False)
sketch18.addGeometry(Part.Circle(V(-130, -20, 0), V(0, 0, 1), 2.5), False)
sketch18.addGeometry(Part.Circle(V(-130, -280, 0), V(0, 0, 1), 2.5), False)
sketch18.addConstraint(Sketcher.Constraint("Equal", 0, 1))
sketch18.addConstraint(Sketcher.Constraint("Equal", 1, 2))
sketch18.addConstraint(Sketcher.Constraint("Equal", 2, 3))
sketch18.addConstraint(Sketcher.Constraint("Horizontal", 0, 3, 2, 3))
sketch18.addConstraint(Sketcher.Constraint("Horizontal", 1, 3, 3, 3))
sketch18.addConstraint(Sketcher.Constraint("Vertical", 0, 3, 1, 3))
sketch18.addConstraint(Sketcher.Constraint("Vertical", 2, 3, 3, 3))
sketch18.addConstraint(Sketcher.Constraint("Diameter", 0, 5.0))
sketch18.addConstraint(Sketcher.Constraint("DistanceX", 0, 3, -1, 1, 20.0))
sketch18.addConstraint(Sketcher.Constraint("DistanceY", 0, 3, -1, 1, 20.0))
sketch18.addConstraint(Sketcher.Constraint("DistanceY", 1, 3, -1, 1, 280.0))
sketch18.addConstraint(Sketcher.Constraint("DistanceX", 2, 3, -1, 1, 130.0))
pad16 = body.newObject("PartDesign::Pad", "Pad015")
pad16.Profile = sketch18
pad16.Length = 3
pad16.Reversed = True

doc.recompute()
